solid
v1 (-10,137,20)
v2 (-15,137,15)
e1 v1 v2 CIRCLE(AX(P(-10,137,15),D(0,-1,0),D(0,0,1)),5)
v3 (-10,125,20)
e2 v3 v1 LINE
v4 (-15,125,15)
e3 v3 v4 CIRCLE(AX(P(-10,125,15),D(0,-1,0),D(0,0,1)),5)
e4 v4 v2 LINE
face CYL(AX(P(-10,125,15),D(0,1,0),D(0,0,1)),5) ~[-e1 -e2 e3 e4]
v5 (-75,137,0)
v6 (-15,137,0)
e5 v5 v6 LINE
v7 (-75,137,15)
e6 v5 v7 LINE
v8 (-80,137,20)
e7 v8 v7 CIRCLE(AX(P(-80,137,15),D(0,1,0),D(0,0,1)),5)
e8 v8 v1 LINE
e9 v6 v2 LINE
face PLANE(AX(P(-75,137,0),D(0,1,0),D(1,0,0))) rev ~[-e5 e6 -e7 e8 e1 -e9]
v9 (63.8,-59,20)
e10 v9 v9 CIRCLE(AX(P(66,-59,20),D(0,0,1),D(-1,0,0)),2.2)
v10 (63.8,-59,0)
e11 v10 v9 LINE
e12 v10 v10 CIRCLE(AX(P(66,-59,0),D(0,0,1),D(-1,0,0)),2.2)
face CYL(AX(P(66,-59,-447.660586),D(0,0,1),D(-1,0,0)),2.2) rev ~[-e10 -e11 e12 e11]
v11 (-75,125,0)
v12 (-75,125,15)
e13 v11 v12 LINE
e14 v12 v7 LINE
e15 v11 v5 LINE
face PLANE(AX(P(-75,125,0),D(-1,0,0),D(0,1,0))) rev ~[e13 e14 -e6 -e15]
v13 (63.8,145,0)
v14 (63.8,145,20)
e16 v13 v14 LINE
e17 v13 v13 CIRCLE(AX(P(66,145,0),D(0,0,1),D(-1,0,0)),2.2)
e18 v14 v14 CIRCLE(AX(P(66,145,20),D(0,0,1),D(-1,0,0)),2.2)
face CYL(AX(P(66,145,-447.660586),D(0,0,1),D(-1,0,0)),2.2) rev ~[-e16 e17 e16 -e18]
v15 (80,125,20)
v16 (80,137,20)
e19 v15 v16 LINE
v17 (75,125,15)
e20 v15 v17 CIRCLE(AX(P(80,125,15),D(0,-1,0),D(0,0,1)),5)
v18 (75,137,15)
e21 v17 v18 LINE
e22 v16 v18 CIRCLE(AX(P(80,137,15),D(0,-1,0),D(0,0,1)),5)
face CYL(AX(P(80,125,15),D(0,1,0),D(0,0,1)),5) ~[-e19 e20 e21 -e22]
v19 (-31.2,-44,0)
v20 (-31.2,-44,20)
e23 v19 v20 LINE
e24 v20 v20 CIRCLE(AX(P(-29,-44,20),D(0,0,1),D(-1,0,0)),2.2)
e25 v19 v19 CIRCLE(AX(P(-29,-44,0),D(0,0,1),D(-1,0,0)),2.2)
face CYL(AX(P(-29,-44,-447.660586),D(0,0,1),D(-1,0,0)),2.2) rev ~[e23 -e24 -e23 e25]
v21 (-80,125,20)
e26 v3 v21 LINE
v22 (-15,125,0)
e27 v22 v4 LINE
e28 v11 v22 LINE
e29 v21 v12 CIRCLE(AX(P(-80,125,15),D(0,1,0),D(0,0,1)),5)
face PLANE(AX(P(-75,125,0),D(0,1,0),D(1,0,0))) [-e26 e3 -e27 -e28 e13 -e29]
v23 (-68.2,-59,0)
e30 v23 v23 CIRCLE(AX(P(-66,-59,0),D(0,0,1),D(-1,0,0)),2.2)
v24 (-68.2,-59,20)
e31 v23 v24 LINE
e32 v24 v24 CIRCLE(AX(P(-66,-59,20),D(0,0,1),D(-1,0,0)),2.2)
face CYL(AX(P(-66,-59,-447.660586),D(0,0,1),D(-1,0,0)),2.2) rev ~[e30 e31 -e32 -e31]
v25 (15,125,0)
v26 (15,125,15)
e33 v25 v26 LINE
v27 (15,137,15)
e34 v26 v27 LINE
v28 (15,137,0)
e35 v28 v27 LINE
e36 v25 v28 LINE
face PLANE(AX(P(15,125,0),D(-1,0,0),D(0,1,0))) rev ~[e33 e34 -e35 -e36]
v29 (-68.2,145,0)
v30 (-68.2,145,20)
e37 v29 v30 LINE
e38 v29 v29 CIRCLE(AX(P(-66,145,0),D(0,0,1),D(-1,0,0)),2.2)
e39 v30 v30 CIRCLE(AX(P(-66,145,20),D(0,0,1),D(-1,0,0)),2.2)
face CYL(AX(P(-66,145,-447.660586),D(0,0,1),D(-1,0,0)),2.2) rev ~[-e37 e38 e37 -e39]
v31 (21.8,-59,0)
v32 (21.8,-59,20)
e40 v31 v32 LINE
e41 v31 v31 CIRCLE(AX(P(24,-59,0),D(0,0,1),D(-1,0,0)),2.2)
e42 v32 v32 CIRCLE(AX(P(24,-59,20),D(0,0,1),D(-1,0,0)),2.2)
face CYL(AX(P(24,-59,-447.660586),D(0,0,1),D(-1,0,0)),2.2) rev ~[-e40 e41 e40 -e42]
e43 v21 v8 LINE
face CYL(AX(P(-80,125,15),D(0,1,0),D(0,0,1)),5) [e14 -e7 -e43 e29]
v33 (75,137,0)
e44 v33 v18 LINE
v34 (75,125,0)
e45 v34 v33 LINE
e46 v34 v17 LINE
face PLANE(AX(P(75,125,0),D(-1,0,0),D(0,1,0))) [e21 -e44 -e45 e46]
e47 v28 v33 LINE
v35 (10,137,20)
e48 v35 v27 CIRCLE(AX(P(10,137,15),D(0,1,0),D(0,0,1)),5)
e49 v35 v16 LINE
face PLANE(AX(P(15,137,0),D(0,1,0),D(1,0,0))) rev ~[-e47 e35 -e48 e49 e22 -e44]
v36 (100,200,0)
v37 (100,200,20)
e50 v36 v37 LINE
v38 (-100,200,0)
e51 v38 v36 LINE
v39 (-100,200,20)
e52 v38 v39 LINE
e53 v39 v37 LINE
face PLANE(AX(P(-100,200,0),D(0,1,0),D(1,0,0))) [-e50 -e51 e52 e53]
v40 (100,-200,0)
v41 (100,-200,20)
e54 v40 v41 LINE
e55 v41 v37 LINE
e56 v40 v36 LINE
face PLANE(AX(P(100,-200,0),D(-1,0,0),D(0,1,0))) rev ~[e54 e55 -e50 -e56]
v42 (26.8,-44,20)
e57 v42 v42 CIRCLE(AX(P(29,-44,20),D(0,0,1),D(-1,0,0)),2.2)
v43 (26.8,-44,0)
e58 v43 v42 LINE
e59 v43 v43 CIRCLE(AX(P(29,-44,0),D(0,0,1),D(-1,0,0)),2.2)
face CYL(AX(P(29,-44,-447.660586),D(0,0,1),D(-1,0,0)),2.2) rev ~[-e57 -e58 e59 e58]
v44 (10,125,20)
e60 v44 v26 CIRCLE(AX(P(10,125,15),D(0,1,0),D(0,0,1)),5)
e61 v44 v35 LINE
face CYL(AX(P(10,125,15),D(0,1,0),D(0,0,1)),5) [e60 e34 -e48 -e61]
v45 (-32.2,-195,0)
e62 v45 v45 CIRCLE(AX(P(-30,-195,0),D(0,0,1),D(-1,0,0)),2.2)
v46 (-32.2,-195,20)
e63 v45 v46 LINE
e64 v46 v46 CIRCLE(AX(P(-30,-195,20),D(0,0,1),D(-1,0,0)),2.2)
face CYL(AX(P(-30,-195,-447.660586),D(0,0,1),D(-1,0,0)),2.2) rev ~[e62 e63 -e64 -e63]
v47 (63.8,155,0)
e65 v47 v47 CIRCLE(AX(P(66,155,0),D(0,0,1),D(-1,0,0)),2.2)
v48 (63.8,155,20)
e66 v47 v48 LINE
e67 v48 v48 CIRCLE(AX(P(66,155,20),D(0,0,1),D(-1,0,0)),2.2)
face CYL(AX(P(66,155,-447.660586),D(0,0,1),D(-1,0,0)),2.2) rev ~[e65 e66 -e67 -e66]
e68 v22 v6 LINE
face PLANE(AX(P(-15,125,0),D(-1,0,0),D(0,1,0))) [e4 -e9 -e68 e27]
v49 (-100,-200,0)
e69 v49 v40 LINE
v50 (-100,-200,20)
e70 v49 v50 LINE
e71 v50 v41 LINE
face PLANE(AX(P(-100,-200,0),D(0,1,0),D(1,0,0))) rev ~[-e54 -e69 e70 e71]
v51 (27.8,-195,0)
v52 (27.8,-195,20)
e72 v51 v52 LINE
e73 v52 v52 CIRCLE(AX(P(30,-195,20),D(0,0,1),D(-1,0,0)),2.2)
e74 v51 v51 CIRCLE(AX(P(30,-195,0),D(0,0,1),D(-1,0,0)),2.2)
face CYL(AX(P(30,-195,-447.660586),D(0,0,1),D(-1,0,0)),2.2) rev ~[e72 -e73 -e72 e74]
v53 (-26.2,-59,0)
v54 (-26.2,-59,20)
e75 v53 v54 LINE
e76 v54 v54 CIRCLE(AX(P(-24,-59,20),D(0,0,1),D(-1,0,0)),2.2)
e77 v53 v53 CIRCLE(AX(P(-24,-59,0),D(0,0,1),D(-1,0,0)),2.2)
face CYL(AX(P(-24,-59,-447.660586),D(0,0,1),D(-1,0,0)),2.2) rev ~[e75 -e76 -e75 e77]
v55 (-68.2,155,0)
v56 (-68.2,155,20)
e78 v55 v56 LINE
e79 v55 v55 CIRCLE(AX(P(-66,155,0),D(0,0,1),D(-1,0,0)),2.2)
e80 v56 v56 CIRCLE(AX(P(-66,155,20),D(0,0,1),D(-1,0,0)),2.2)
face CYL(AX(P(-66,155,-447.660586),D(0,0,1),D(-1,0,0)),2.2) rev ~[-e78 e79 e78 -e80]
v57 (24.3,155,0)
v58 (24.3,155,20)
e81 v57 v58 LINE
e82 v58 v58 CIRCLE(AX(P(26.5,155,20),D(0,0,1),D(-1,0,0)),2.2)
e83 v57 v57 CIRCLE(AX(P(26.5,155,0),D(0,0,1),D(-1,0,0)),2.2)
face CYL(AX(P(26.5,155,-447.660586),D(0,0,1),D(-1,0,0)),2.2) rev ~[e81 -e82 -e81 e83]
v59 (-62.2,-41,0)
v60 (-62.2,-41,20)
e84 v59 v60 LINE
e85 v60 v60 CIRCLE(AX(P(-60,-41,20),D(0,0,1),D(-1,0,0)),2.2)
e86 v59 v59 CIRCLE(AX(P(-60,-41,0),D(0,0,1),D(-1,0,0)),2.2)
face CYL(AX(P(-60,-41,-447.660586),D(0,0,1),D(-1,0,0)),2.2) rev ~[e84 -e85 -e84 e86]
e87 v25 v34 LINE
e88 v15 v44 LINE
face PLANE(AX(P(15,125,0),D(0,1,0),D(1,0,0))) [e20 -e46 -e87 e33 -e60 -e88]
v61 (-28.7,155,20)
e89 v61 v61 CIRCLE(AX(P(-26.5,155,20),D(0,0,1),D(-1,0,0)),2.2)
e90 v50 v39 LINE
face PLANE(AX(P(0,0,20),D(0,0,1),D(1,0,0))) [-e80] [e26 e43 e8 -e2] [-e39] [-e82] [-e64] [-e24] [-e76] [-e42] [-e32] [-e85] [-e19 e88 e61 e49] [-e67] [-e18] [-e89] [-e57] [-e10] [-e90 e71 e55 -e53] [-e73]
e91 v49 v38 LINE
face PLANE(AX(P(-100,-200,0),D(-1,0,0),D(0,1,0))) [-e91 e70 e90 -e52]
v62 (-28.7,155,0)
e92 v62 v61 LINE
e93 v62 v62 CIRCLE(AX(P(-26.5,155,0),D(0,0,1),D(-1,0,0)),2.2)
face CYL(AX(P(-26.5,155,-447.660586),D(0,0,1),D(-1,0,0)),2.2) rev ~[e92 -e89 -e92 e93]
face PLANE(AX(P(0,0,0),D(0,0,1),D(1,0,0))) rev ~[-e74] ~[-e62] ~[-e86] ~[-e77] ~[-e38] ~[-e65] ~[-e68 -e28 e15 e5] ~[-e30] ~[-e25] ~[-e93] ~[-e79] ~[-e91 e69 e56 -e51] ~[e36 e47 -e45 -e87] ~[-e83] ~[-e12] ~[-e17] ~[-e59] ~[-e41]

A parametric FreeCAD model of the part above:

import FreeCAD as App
import Part
import Sketcher
Q = App.Units.Quantity


def edges_at(feature, points):
    """Names of the edges that pass closest to the given points."""
    edges = feature.Shape.Edges
    near = lambda p: min(range(len(edges)), key=lambda i: edges[i].distToShape(Part.Vertex(*p))[0])
    return sorted({f"Edge{near(p) + 1}" for p in points})

doc = App.newDocument("Part")
body = doc.addObject("PartDesign::Body", "Body")

sketch1 = body.newObject("Sketcher::SketchObject", "Sketch")
sketch1.AttachmentSupport = (doc.getObject("XY_Plane"), [""])
sketch1.MapMode = "FlatFace"
sketch1.addGeometry(Part.LineSegment(App.Vector(-100, 200, 0), App.Vector(-100, -200, 0)), False)
sketch1.addGeometry(Part.LineSegment(App.Vector(-100, -200, 0), App.Vector(100, -200, 0)), False)
sketch1.addGeometry(Part.LineSegment(App.Vector(100, -200, 0), App.Vector(100, 200, 0)), False)
sketch1.addGeometry(Part.LineSegment(App.Vector(100, 200, 0), App.Vector(-100, 200, 0)), False)
sketch1.addGeometry(Part.LineSegment(App.Vector(-15, 125, 0), App.Vector(-75, 125, 0)), False)
sketch1.addGeometry(Part.LineSegment(App.Vector(-75, 125, 0), App.Vector(-75, 137, 0)), False)
sketch1.addGeometry(Part.LineSegment(App.Vector(-75, 137, 0), App.Vector(-15, 137, 0)), False)
sketch1.addGeometry(Part.LineSegment(App.Vector(-15, 137, 0), App.Vector(-15, 125, 0)), False)
sketch1.addGeometry(Part.LineSegment(App.Vector(75, 125, 0), App.Vector(15, 125, 0)), False)
sketch1.addGeometry(Part.LineSegment(App.Vector(15, 125, 0), App.Vector(15, 137, 0)), False)
sketch1.addGeometry(Part.LineSegment(App.Vector(15, 137, 0), App.Vector(75, 137, 0)), False)
sketch1.addGeometry(Part.LineSegment(App.Vector(75, 137, 0), App.Vector(75, 125, 0)), False)
sketch1.addConstraint(Sketcher.Constraint("Coincident", 0, 2, 1, 1))
sketch1.addConstraint(Sketcher.Constraint("Coincident", 1, 2, 2, 1))
sketch1.addConstraint(Sketcher.Constraint("Coincident", 2, 2, 3, 1))
sketch1.addConstraint(Sketcher.Constraint("Coincident", 3, 2, 0, 1))
sketch1.addConstraint(Sketcher.Constraint("Coincident", 4, 2, 5, 1))
sketch1.addConstraint(Sketcher.Constraint("Coincident", 5, 2, 6, 1))
sketch1.addConstraint(Sketcher.Constraint("Coincident", 6, 2, 7, 1))
sketch1.addConstraint(Sketcher.Constraint("Coincident", 7, 2, 4, 1))
sketch1.addConstraint(Sketcher.Constraint("Coincident", 8, 2, 9, 1))
sketch1.addConstraint(Sketcher.Constraint("Coincident", 9, 2, 10, 1))
sketch1.addConstraint(Sketcher.Constraint("Coincident", 10, 2, 11, 1))
sketch1.addConstraint(Sketcher.Constraint("Coincident", 11, 2, 8, 1))
sketch1.addConstraint(Sketcher.Constraint("Vertical", 0))
sketch1.addConstraint(Sketcher.Constraint("Horizontal", 1))
sketch1.addConstraint(Sketcher.Constraint("Vertical", 2))
sketch1.addConstraint(Sketcher.Constraint("Horizontal", 3))
sketch1.addConstraint(Sketcher.Constraint("Horizontal", 4))
sketch1.addConstraint(Sketcher.Constraint("Vertical", 5))
sketch1.addConstraint(Sketcher.Constraint("Horizontal", 6))
sketch1.addConstraint(Sketcher.Constraint("Vertical", 7))
sketch1.addConstraint(Sketcher.Constraint("Horizontal", 8))
sketch1.addConstraint(Sketcher.Constraint("Vertical", 9))
sketch1.addConstraint(Sketcher.Constraint("Horizontal", 10))
sketch1.addConstraint(Sketcher.Constraint("Vertical", 11))
sketch1.addConstraint(Sketcher.Constraint("Symmetric", 0, 2, 2, 2, -1, 1))
sketch1.addConstraint(Sketcher.Constraint("Symmetric", 7, 2, 8, 2, -2))
sketch1.addConstraint(Sketcher.Constraint("Symmetric", 5, 2, 10, 2, -2))
sketch1.addConstraint(Sketcher.Constraint("DistanceX", 1, 1, 1, 2, Q("200 mm")))
sketch1.addConstraint(Sketcher.Constraint("DistanceX", 4, 2, 4, 1, Q("60 mm")))
sketch1.addConstraint(Sketcher.Constraint("DistanceY", 0, 2, 0, 1, Q("400 mm")))
sketch1.addConstraint(Sketcher.Constraint("DistanceY", 5, 1, 5, 2, Q("12 mm")))
sketch1.addConstraint(Sketcher.Constraint("DistanceX", 4, 2, -1, 1, Q("75 mm")))
sketch1.addConstraint(Sketcher.Constraint("DistanceY", -1, 1, 4, 2, Q("125 mm")))
pad1 = body.newObject("PartDesign::Pad", "Pad")
pad1.Profile = sketch1
pad1.Length = 20

sketch2 = body.newObject("Sketcher::SketchObject", "Sketch001")
sketch2.AttachmentSupport = (doc.getObject("XY_Plane"), [""])
sketch2.MapMode = "FlatFace"
sketch2.addGeometry(Part.Circle(App.Vector(-26.5, 155, 0), App.Vector(0, 0, 1), 2.2), False)
sketch2.addGeometry(Part.Circle(App.Vector(26.5, 155, 0), App.Vector(0, 0, 1), 2.2), False)
sketch2.addGeometry(Part.Circle(App.Vector(-66, -59, 0), App.Vector(0, 0, 1), 2.2), False)
sketch2.addGeometry(Part.Circle(App.Vector(-24, -59, 0), App.Vector(0, 0, 1), 2.2), False)
sketch2.addGeometry(Part.Circle(App.Vector(24, -59, 0), App.Vector(0, 0, 1), 2.2), False)
sketch2.addGeometry(Part.Circle(App.Vector(66, -59, 0), App.Vector(0, 0, 1), 2.2), False)
sketch2.addGeometry(Part.Circle(App.Vector(-66, 155, 0), App.Vector(0, 0, 1), 2.2), False)
sketch2.addGeometry(Part.Circle(App.Vector(-66, 145, 0), App.Vector(0, 0, 1), 2.2), False)
sketch2.addGeometry(Part.Circle(App.Vector(66, 155, 0), App.Vector(0, 0, 1), 2.2), False)
sketch2.addGeometry(Part.Circle(App.Vector(66, 145, 0), App.Vector(0, 0, 1), 2.2), False)
sketch2.addGeometry(Part.Circle(App.Vector(-29, -44, 0), App.Vector(0, 0, 1), 2.2), False)
sketch2.addGeometry(Part.Circle(App.Vector(29, -44, 0), App.Vector(0, 0, 1), 2.2), False)
sketch2.addGeometry(Part.Circle(App.Vector(-30, -195, 0), App.Vector(0, 0, 1), 2.2), False)
sketch2.addGeometry(Part.Circle(App.Vector(30, -195, 0), App.Vector(0, 0, 1), 2.2), False)
sketch2.addGeometry(Part.Circle(App.Vector(-60, -41, 0), App.Vector(0, 0, 1), 2.2), False)
sketch2.addConstraint(Sketcher.Constraint("Equal", 0, 1))
sketch2.addConstraint(Sketcher.Constraint("Equal", 1, 2))
sketch2.addConstraint(Sketcher.Constraint("Equal", 2, 3))
sketch2.addConstraint(Sketcher.Constraint("Equal", 3, 4))
sketch2.addConstraint(Sketcher.Constraint("Equal", 4, 5))
sketch2.addConstraint(Sketcher.Constraint("Equal", 5, 6))
sketch2.addConstraint(Sketcher.Constraint("Equal", 6, 7))
sketch2.addConstraint(Sketcher.Constraint("Equal", 7, 8))
sketch2.addConstraint(Sketcher.Constraint("Equal", 8, 9))
sketch2.addConstraint(Sketcher.Constraint("Equal", 9, 10))
sketch2.addConstraint(Sketcher.Constraint("Equal", 10, 11))
sketch2.addConstraint(Sketcher.Constraint("Equal", 11, 12))
sketch2.addConstraint(Sketcher.Constraint("Equal", 12, 13))
sketch2.addConstraint(Sketcher.Constraint("Equal", 13, 14))
sketch2.addConstraint(Sketcher.Constraint("Symmetric", 0, 3, 1, 3, -2))
sketch2.addConstraint(Sketcher.Constraint("Symmetric", 3, 3, 4, 3, -2))
sketch2.addConstraint(Sketcher.Constraint("Symmetric", 2, 3, 5, 3, -2))
sketch2.addConstraint(Sketcher.Constraint("Symmetric", 6, 3, 8, 3, -2))
sketch2.addConstraint(Sketcher.Constraint("Symmetric", 7, 3, 9, 3, -2))
sketch2.addConstraint(Sketcher.Constraint("Symmetric", 10, 3, 11, 3, -2))
sketch2.addConstraint(Sketcher.Constraint("Symmetric", 12, 3, 13, 3, -2))
sketch2.addConstraint(Sketcher.Constraint("Horizontal", 2, 3, 3, 3))
sketch2.addConstraint(Sketcher.Constraint("Horizontal", 1, 3, 6, 3))
sketch2.addConstraint(Sketcher.Constraint("Vertical", 2, 3, 6, 3))
sketch2.addConstraint(Sketcher.Constraint("Vertical", 6, 3, 7, 3))
sketch2.addConstraint(Sketcher.Constraint("Diameter", 0, Q("4.4 mm")))
sketch2.addConstraint(Sketcher.Constraint("DistanceY", -1, 1, 0, 3, Q("155 mm")))
sketch2.addConstraint(Sketcher.Constraint("DistanceX", 2, 3, -1, 1, Q("66 mm")))
sketch2.addConstraint(Sketcher.Constraint("DistanceY", 2, 3, -1, 1, Q("59 mm")))
sketch2.addConstraint(Sketcher.Constraint("DistanceX", 3, 3, -1, 1, Q("24 mm")))
sketch2.addConstraint(Sketcher.Constraint("DistanceY", -1, 1, 7, 3, Q("145 mm")))
sketch2.addConstraint(Sketcher.Constraint("DistanceX", 10, 3, -1, 1, Q("29 mm")))
sketch2.addConstraint(Sketcher.Constraint("DistanceY", 10, 3, -1, 1, Q("44 mm")))
sketch2.addConstraint(Sketcher.Constraint("DistanceX", 12, 3, -1, 1, Q("30 mm")))
sketch2.addConstraint(Sketcher.Constraint("DistanceY", 12, 3, -1, 1, Q("195 mm")))
sketch2.addConstraint(Sketcher.Constraint("DistanceX", 14, 3, -1, 1, Q("60 mm")))
sketch2.addConstraint(Sketcher.Constraint("DistanceY", 14, 3, -1, 1, Q("41 mm")))
sketch2.addConstraint(Sketcher.Constraint("DistanceX", 0, 3, 1, 3, Q("53 mm")))
doc.recompute()
hole = body.newObject("PartDesign::Hole", "Hole")
hole.Profile = sketch2
hole.ThreadType = "None"
hole.Diameter = 4.4
hole.DepthType = "ThroughAll"
hole.Reversed = True
doc.recompute()

fillet = body.newObject("PartDesign::Fillet", "Fillet")
fillet.Base = (hole, edges_at(hole, [
    (-75, 131, 20),
    (-15, 131, 20),
    (15, 131, 20),
    (75, 131, 20),
]))
fillet.Radius = 5

doc.recompute()
